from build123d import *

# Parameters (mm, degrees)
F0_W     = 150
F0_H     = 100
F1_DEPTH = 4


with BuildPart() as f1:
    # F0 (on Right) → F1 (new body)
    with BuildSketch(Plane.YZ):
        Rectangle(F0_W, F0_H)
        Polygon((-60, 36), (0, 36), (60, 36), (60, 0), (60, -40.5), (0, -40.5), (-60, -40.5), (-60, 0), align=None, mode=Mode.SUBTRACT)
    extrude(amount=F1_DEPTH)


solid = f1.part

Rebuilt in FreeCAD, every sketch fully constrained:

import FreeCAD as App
import Part
import Sketcher
Q = App.Units.Quantity

doc = App.newDocument("Part")
body = doc.addObject("PartDesign::Body", "Body")

# Sketch on YZ plane
sketch1 = doc.addObject("Sketcher::SketchObject", "Sketch")
body.addObject(sketch1)
sketch1.AttachmentSupport = (doc.YZ_Plane, [""])
sketch1.MapMode = "FlatFace"
sketch1.addGeometry([
    Part.LineSegment(App.Vector(-75, 50, 0), App.Vector(-75, -50, 0)),  # 0
    Part.LineSegment(App.Vector(-75, -50, 0), App.Vector(75, -50, 0)),  # 1
    Part.LineSegment(App.Vector(75, -50, 0), App.Vector(75, 50, 0)),  # 2
    Part.LineSegment(App.Vector(75, 50, 0), App.Vector(-75, 50, 0)),  # 3
    Part.LineSegment(App.Vector(-60, -40, 0), App.Vector(-60, 36, 0)),  # 4
    Part.LineSegment(App.Vector(-60, 36, 0), App.Vector(60, 36, 0)),  # 5
    Part.LineSegment(App.Vector(60, 36, 0), App.Vector(60, -40, 0)),  # 6
    Part.LineSegment(App.Vector(60, -40, 0), App.Vector(-60, -40, 0)),  # 7
], False)
sketch1.addConstraint([
    Sketcher.Constraint("Coincident", 0, 2, 1, 1),
    Sketcher.Constraint("Coincident", 1, 2, 2, 1),
    Sketcher.Constraint("Coincident", 2, 2, 3, 1),
    Sketcher.Constraint("Coincident", 3, 2, 0, 1),
    Sketcher.Constraint("Coincident", 4, 2, 5, 1),
    Sketcher.Constraint("Coincident", 5, 2, 6, 1),
    Sketcher.Constraint("Coincident", 6, 2, 7, 1),
    Sketcher.Constraint("Coincident", 7, 2, 4, 1),
    Sketcher.Constraint("Vertical", 0),
    Sketcher.Constraint("Horizontal", 1),
    Sketcher.Constraint("Vertical", 2),
    Sketcher.Constraint("Horizontal", 3),
    Sketcher.Constraint("Vertical", 4),
    Sketcher.Constraint("Horizontal", 5),
    Sketcher.Constraint("Vertical", 6),
    Sketcher.Constraint("Horizontal", 7),
    Sketcher.Constraint("Symmetric", 0, 2, 2, 2, -1, 1),
    Sketcher.Constraint("DistanceX", 1, 1, 1, 2, Q("150 mm")),
    Sketcher.Constraint("DistanceX", 5, 1, 5, 2, Q("120 mm")),
    Sketcher.Constraint("DistanceY", 0, 2, 0, 1, Q("100 mm")),
    Sketcher.Constraint("DistanceY", 4, 1, 4, 2, Q("76.5 mm")),
    Sketcher.Constraint("DistanceX", 4, 2, -1, 1, Q("60 mm")),
    Sketcher.Constraint("DistanceY", -1, 1, 4, 2, Q("36 mm")),
])
pad1 = doc.addObject("PartDesign::Pad", "Pad")
body.addObject(pad1)
pad1.Profile = sketch1
pad1.Length = 4

doc.recompute()
